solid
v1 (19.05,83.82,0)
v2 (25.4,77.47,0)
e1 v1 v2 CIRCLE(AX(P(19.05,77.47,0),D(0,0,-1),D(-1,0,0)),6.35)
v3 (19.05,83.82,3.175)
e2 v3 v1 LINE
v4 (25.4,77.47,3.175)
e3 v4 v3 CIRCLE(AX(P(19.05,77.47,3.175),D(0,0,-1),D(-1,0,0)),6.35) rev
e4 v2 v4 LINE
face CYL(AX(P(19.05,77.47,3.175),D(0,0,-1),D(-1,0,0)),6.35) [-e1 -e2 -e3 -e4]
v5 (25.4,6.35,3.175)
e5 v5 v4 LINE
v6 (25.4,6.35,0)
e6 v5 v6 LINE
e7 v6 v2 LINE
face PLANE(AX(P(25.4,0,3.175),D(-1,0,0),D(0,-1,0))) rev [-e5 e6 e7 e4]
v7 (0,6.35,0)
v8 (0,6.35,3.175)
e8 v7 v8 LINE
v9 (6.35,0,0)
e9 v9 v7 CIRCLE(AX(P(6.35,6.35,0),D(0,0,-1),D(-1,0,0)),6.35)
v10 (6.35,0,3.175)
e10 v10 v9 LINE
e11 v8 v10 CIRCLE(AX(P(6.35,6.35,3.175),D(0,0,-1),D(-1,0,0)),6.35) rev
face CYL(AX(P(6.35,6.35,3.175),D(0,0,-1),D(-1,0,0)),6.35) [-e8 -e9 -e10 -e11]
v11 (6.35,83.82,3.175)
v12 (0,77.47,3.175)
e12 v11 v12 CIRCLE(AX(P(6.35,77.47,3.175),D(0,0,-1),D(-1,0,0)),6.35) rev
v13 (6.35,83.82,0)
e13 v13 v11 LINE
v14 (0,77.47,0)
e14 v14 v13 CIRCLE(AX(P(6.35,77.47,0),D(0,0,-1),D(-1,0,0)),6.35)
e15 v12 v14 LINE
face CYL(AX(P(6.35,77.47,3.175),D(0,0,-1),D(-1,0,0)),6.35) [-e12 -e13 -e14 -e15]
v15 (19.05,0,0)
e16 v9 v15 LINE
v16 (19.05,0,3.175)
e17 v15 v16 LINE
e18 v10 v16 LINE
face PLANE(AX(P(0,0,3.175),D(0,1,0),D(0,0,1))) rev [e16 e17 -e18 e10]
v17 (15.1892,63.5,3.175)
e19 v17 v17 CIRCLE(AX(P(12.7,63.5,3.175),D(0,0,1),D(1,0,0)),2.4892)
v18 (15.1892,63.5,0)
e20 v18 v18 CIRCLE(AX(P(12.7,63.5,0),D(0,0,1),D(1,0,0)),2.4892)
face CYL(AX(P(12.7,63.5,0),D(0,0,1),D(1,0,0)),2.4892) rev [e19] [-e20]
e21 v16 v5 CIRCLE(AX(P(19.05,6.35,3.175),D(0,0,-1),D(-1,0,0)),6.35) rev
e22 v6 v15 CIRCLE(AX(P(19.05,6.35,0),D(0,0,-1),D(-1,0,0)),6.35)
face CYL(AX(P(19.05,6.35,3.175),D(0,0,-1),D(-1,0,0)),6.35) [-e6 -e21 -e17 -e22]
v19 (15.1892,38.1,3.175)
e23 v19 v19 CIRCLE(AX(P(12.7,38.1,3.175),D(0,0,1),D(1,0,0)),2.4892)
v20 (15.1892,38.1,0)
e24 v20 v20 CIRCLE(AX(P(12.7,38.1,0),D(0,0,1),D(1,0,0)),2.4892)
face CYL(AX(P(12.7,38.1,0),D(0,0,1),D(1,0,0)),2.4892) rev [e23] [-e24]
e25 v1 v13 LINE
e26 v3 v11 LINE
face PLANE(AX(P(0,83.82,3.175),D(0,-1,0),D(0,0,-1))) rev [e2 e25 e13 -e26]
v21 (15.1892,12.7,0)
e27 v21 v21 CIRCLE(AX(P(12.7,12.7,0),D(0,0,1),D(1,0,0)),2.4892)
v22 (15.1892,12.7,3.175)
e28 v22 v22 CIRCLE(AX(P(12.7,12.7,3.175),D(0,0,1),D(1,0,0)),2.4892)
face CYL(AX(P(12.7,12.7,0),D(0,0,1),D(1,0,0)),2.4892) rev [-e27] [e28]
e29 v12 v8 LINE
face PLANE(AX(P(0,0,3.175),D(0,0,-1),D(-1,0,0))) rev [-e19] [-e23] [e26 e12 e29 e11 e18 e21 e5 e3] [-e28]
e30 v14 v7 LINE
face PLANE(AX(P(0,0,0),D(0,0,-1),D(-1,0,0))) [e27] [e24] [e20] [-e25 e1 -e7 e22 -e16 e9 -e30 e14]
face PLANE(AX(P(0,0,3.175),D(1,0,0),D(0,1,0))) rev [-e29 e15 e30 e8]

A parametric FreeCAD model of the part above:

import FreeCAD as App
import Part
import Sketcher
Q = App.Units.Quantity


def edges_at(feature, points):
    """Names of the edges that pass closest to the given points."""
    edges = feature.Shape.Edges
    near = lambda p: min(range(len(edges)), key=lambda i: edges[i].distToShape(Part.Vertex(*p))[0])
    return sorted({f"Edge{near(p) + 1}" for p in points})

doc = App.newDocument("Part")
body = doc.addObject("PartDesign::Body", "Body")

# Sketch on XY plane
sketch1 = body.newObject("Sketcher::SketchObject", "Sketch")
sketch1.AttachmentSupport = (doc.getObject("XY_Plane"), [""])
sketch1.MapMode = "FlatFace"
sketch1.addGeometry(Part.LineSegment(App.Vector(0, 84, 0), App.Vector(0, 0, 0)), False)
sketch1.addGeometry(Part.LineSegment(App.Vector(0, 0, 0), App.Vector(25, 0, 0)), False)
sketch1.addGeometry(Part.LineSegment(App.Vector(25, 0, 0), App.Vector(25, 84, 0)), False)
sketch1.addGeometry(Part.LineSegment(App.Vector(25, 84, 0), App.Vector(0, 84, 0)), False)
sketch1.addConstraint(Sketcher.Constraint("Coincident", 0, 2, 1, 1))
sketch1.addConstraint(Sketcher.Constraint("Coincident", 1, 2, 2, 1))
sketch1.addConstraint(Sketcher.Constraint("Coincident", 2, 2, 3, 1))
sketch1.addConstraint(Sketcher.Constraint("Coincident", 3, 2, 0, 1))
sketch1.addConstraint(Sketcher.Constraint("Vertical", 0))
sketch1.addConstraint(Sketcher.Constraint("Horizontal", 1))
sketch1.addConstraint(Sketcher.Constraint("Vertical", 2))
sketch1.addConstraint(Sketcher.Constraint("Horizontal", 3))
sketch1.addConstraint(Sketcher.Constraint("Coincident", 0, 2, -1, 1))
sketch1.addConstraint(Sketcher.Constraint("DistanceX", 1, 1, 1, 2, Q("1 in")))
sketch1.addConstraint(Sketcher.Constraint("DistanceY", 0, 2, 0, 1, Q("3.3 in")))
pad1 = body.newObject("PartDesign::Pad", "Pad")
pad1.Profile = sketch1
pad1.Length = Q("0.125 in")

# Sketch on XY plane
sketch2 = body.newObject("Sketcher::SketchObject", "Sketch001")
sketch2.AttachmentSupport = (doc.getObject("XY_Plane"), [""])
sketch2.MapMode = "FlatFace"
sketch2.AttachmentOffset = App.Placement(App.Vector(0, 0, 0.125 * 25.4), App.Rotation())
sketch2.addGeometry(Part.Circle(App.Vector(12.7, 12.7, 0), App.Vector(0, 0, 1), 2.5), False)
sketch2.addGeometry(Part.Circle(App.Vector(12.7, 38.1, 0), App.Vector(0, 0, 1), 2.5), False)
sketch2.addGeometry(Part.Circle(App.Vector(12.7, 63.5, 0), App.Vector(0, 0, 1), 2.5), False)
sketch2.addConstraint(Sketcher.Constraint("Equal", 0, 1))
sketch2.addConstraint(Sketcher.Constraint("Equal", 1, 2))
sketch2.addConstraint(Sketcher.Constraint("Vertical", 0, 3, 1, 3))
sketch2.addConstraint(Sketcher.Constraint("Vertical", 1, 3, 2, 3))
sketch2.addConstraint(Sketcher.Constraint("Diameter", 0, Q("0.196 in")))
sketch2.addConstraint(Sketcher.Constraint("DistanceY", 0, 3, 1, 3, Q("1 in")))
sketch2.addConstraint(Sketcher.Constraint("DistanceY", 1, 3, 2, 3, Q("1 in")))
sketch2.addConstraint(Sketcher.Constraint("DistanceX", -1, 1, 0, 3, Q("0.5 in")))
sketch2.addConstraint(Sketcher.Constraint("DistanceY", -1, 1, 0, 3, Q("0.5 in")))
pocket1 = body.newObject("PartDesign::Pocket", "Pocket")
pocket1.Profile = sketch2
pocket1.Type = "ThroughAll"
doc.recompute()

fillet = body.newObject("PartDesign::Fillet", "Fillet")
fillet.Base = (pocket1, edges_at(pocket1, [
    (0, 83.82, 1.587),
    (25.4, 83.82, 1.587),
    (25.4, 0, 1.587),
    (0, 0, 1.587),
]))
fillet.Radius = Q("0.25 in")

doc.recompute()
